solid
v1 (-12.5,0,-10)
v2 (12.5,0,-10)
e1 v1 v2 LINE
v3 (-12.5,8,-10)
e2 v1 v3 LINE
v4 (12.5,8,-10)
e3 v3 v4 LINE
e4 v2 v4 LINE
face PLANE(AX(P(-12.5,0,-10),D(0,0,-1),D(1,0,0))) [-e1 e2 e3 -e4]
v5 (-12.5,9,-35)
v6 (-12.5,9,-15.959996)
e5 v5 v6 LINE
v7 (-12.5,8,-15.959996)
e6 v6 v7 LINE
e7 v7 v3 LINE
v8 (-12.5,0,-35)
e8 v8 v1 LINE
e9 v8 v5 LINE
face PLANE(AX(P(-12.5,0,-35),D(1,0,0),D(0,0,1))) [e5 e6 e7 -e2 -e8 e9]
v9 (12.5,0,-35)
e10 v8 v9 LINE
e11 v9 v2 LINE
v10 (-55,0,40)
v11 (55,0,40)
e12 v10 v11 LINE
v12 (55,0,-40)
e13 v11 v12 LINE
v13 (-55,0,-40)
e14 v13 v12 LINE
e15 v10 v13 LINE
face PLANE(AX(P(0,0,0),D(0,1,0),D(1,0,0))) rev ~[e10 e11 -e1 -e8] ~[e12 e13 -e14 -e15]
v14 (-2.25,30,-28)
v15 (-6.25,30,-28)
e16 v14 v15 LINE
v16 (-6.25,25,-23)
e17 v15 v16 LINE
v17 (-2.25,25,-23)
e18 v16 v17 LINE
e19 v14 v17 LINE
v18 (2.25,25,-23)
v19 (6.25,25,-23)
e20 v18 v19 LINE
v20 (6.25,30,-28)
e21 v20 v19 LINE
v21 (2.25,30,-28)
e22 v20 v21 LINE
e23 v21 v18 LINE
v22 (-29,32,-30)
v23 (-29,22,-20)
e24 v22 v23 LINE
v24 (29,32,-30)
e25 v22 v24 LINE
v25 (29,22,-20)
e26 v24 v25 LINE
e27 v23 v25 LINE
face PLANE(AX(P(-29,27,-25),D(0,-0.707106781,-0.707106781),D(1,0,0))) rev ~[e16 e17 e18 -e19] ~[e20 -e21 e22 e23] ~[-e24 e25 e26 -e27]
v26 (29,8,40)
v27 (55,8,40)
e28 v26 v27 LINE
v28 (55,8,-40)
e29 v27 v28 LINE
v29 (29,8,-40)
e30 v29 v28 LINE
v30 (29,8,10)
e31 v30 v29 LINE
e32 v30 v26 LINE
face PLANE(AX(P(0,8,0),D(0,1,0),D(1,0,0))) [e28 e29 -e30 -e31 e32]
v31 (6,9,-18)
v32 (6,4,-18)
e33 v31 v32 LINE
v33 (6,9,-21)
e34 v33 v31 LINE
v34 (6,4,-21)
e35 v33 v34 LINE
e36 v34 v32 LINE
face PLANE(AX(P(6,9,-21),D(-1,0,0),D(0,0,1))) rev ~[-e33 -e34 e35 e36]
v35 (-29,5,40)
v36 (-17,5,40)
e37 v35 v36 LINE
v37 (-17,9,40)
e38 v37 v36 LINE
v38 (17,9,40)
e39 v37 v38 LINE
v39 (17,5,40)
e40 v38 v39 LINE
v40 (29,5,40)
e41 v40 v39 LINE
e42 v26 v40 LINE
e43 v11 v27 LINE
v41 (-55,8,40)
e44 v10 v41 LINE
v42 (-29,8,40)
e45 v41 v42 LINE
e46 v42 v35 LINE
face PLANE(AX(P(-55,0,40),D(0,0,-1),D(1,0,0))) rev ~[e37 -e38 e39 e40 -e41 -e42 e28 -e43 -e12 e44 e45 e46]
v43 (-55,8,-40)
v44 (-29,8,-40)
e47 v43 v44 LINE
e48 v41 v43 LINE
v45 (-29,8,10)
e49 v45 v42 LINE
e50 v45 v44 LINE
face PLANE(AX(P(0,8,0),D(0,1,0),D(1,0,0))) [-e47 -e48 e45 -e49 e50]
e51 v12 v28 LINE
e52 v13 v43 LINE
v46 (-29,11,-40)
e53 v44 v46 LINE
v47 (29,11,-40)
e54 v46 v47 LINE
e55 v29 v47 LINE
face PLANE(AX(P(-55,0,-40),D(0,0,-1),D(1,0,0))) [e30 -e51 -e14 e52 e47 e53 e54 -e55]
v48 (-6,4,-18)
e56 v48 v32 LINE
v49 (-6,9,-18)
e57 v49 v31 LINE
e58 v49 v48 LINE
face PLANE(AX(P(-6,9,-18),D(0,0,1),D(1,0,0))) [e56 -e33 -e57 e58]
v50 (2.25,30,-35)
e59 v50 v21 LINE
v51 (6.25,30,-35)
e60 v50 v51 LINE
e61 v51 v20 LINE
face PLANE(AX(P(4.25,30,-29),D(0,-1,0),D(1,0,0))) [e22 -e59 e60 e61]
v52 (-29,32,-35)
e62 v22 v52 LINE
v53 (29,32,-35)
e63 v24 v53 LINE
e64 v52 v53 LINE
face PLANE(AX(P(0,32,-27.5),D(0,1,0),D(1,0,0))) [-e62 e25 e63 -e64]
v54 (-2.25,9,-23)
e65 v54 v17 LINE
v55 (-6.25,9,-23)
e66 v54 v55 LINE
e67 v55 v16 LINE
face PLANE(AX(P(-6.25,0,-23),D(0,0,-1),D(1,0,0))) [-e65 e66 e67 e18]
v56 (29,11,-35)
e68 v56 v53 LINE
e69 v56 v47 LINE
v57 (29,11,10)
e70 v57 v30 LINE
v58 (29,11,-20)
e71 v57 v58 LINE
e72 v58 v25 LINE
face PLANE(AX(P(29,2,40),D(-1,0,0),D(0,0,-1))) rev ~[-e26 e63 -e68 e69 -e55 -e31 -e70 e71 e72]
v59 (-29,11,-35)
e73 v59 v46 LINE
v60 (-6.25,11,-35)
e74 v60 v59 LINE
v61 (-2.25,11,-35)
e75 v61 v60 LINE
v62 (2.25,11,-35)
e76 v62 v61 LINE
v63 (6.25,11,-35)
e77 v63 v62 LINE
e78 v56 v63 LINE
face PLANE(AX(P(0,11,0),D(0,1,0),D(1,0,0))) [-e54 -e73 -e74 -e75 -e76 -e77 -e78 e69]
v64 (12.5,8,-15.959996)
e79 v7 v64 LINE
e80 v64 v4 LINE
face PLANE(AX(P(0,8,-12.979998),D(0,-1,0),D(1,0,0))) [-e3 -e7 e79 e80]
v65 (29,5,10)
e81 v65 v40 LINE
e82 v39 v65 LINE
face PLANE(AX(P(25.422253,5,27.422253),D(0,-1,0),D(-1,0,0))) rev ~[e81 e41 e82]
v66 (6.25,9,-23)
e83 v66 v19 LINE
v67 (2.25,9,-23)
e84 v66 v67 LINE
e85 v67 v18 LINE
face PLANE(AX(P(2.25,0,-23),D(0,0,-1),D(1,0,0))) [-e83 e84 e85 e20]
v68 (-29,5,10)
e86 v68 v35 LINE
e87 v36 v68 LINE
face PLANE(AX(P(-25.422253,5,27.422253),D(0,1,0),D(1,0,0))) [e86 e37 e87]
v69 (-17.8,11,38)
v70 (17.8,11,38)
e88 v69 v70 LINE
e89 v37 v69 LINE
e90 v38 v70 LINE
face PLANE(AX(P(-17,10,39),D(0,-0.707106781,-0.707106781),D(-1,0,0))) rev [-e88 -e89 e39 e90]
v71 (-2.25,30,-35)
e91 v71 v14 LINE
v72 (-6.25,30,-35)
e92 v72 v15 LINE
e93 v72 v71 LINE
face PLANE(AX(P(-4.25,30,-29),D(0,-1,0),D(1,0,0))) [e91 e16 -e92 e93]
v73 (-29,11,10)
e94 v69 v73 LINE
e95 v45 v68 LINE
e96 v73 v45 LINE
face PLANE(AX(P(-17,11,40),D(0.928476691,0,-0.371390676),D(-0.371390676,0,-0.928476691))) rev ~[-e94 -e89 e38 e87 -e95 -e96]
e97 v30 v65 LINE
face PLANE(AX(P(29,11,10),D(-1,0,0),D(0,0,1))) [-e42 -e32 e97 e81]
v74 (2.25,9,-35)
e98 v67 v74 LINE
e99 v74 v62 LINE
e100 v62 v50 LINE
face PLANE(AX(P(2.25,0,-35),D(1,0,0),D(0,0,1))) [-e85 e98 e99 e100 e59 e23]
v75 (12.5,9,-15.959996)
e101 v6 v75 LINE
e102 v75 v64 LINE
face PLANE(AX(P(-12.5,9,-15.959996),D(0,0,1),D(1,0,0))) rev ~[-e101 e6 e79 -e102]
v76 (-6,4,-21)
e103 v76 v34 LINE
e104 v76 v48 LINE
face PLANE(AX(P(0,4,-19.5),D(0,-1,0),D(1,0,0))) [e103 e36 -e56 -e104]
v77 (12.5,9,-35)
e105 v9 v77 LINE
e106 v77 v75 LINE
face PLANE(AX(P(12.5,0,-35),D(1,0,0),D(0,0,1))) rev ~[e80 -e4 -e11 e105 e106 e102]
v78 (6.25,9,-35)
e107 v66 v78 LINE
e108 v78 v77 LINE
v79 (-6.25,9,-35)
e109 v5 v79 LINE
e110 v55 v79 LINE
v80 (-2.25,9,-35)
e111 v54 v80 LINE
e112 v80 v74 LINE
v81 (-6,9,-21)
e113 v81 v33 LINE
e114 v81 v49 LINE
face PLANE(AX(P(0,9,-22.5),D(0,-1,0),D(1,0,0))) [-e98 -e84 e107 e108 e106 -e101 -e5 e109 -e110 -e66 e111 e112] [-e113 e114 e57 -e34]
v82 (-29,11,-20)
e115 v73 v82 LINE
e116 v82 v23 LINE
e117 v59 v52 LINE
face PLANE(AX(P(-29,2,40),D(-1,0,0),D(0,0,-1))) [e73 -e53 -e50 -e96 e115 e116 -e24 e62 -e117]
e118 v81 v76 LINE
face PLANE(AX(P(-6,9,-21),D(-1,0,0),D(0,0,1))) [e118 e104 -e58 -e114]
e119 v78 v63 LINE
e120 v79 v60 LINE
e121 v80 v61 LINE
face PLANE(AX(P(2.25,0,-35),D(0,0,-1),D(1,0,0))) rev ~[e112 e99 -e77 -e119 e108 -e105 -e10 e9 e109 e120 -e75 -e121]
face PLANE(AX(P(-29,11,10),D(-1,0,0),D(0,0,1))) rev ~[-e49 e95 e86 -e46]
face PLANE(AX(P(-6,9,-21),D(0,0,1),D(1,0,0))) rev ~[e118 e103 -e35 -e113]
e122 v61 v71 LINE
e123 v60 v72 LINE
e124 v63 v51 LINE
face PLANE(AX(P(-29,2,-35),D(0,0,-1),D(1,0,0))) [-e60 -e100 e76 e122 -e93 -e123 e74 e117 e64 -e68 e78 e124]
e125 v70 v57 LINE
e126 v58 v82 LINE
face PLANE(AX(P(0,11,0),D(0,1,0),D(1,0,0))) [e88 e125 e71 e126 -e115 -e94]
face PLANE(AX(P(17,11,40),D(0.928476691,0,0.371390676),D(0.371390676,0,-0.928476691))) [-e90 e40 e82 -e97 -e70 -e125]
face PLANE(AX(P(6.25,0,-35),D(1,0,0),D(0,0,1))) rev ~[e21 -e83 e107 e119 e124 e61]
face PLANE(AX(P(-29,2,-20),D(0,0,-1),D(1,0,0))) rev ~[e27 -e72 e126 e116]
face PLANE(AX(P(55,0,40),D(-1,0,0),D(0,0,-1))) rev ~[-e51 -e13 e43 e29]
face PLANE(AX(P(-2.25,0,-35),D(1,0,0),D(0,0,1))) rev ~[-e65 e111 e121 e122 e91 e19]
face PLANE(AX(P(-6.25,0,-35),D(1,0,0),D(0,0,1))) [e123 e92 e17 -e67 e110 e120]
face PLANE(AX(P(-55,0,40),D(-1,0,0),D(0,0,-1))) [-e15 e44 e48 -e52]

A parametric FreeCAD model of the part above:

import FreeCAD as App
import Part
import Sketcher
from FreeCAD import Vector


def edges_at(feature, points):
    """Names of the edges that pass closest to the given points."""
    edges = feature.Shape.Edges
    near = lambda p: min(range(len(edges)), key=lambda i: edges[i].distToShape(Part.Vertex(*p))[0])
    return sorted({f"Edge{near(p) + 1}" for p in points})

doc = App.newDocument("Part")
body = doc.addObject("PartDesign::Body", "Body")

# Sketch on XZ plane
sketch1 = body.newObject("Sketcher::SketchObject", "Sketch")
sketch1.AttachmentSupport = (doc.getObject("XZ_Plane"), [""])
sketch1.MapMode = "FlatFace"
sketch1.addGeometry(Part.LineSegment(Vector(-55, -40, 0), Vector(-55, 40, 0)), False)
sketch1.addGeometry(Part.LineSegment(Vector(-55, 40, 0), Vector(55, 40, 0)), False)
sketch1.addGeometry(Part.LineSegment(Vector(55, 40, 0), Vector(55, -40, 0)), False)
sketch1.addGeometry(Part.LineSegment(Vector(55, -40, 0), Vector(-55, -40, 0)), False)
sketch1.addConstraint(Sketcher.Constraint("Coincident", 0, 2, 1, 1))
sketch1.addConstraint(Sketcher.Constraint("Coincident", 1, 2, 2, 1))
sketch1.addConstraint(Sketcher.Constraint("Coincident", 2, 2, 3, 1))
sketch1.addConstraint(Sketcher.Constraint("Coincident", 3, 2, 0, 1))
sketch1.addConstraint(Sketcher.Constraint("Vertical", 0))
sketch1.addConstraint(Sketcher.Constraint("Horizontal", 1))
sketch1.addConstraint(Sketcher.Constraint("Vertical", 2))
sketch1.addConstraint(Sketcher.Constraint("Horizontal", 3))
sketch1.addConstraint(Sketcher.Constraint("Symmetric", 0, 2, 2, 2, -1, 1))
sketch1.addConstraint(Sketcher.Constraint("DistanceX", 1, 1, 1, 2, 110.0))
sketch1.addConstraint(Sketcher.Constraint("DistanceY", 0, 1, 0, 2, 80.0))
pad1 = body.newObject("PartDesign::Pad", "Pad")
pad1.Profile = sketch1
pad1.Length = 8
pad1.Reversed = True

# Sketch on XZ plane
sketch2 = body.newObject("Sketcher::SketchObject", "Sketch001")
sketch2.AttachmentSupport = (doc.getObject("XZ_Plane"), [""])
sketch2.MapMode = "FlatFace"
sketch2.AttachmentOffset = App.Placement(Vector(0, 0, -2), App.Rotation())
sketch2.addGeometry(Part.LineSegment(Vector(-29, -40, 0), Vector(-29, 40, 0)), False)
sketch2.addGeometry(Part.LineSegment(Vector(-29, 40, 0), Vector(29, 40, 0)), False)
sketch2.addGeometry(Part.LineSegment(Vector(29, 40, 0), Vector(29, -40, 0)), False)
sketch2.addGeometry(Part.LineSegment(Vector(29, -40, 0), Vector(-29, -40, 0)), False)
sketch2.addConstraint(Sketcher.Constraint("Coincident", 0, 2, 1, 1))
sketch2.addConstraint(Sketcher.Constraint("Coincident", 1, 2, 2, 1))
sketch2.addConstraint(Sketcher.Constraint("Coincident", 2, 2, 3, 1))
sketch2.addConstraint(Sketcher.Constraint("Coincident", 3, 2, 0, 1))
sketch2.addConstraint(Sketcher.Constraint("Vertical", 0))
sketch2.addConstraint(Sketcher.Constraint("Horizontal", 1))
sketch2.addConstraint(Sketcher.Constraint("Vertical", 2))
sketch2.addConstraint(Sketcher.Constraint("Horizontal", 3))
sketch2.addConstraint(Sketcher.Constraint("Symmetric", 0, 2, 2, 2, -1, 1))
sketch2.addConstraint(Sketcher.Constraint("DistanceX", 1, 1, 1, 2, 58.0))
sketch2.addConstraint(Sketcher.Constraint("DistanceY", 0, 1, 0, 2, 80.0))
pad2 = body.newObject("PartDesign::Pad", "Pad001")
pad2.Profile = sketch2
pad2.Length = 9
pad2.Reversed = True

# Sketch on XZ plane
sketch3 = body.newObject("Sketcher::SketchObject", "Sketch002")
sketch3.AttachmentSupport = (doc.getObject("XZ_Plane"), [""])
sketch3.MapMode = "FlatFace"
sketch3.AttachmentOffset = App.Placement(Vector(0, 0, -11), App.Rotation())
sketch3.addGeometry(Part.LineSegment(Vector(-29, 10, 0), Vector(-29, 40, 0)), False)
sketch3.addGeometry(Part.LineSegment(Vector(-29, 40, 0), Vector(-17, 40, 0)), False)
sketch3.addGeometry(Part.LineSegment(Vector(-17, 40, 0), Vector(-29, 10, 0)), False)
sketch3.addGeometry(Part.LineSegment(Vector(29, 10, 0), Vector(17, 40, 0)), False)
sketch3.addGeometry(Part.LineSegment(Vector(17, 40, 0), Vector(29, 40, 0)), False)
sketch3.addGeometry(Part.LineSegment(Vector(29, 40, 0), Vector(29, 10, 0)), False)
sketch3.addConstraint(Sketcher.Constraint("Coincident", 0, 2, 1, 1))
sketch3.addConstraint(Sketcher.Constraint("Coincident", 1, 2, 2, 1))
sketch3.addConstraint(Sketcher.Constraint("Coincident", 2, 2, 0, 1))
sketch3.addConstraint(Sketcher.Constraint("Coincident", 3, 2, 4, 1))
sketch3.addConstraint(Sketcher.Constraint("Coincident", 4, 2, 5, 1))
sketch3.addConstraint(Sketcher.Constraint("Coincident", 5, 2, 3, 1))
sketch3.addConstraint(Sketcher.Constraint("Vertical", 0))
sketch3.addConstraint(Sketcher.Constraint("Horizontal", 1))
sketch3.addConstraint(Sketcher.Constraint("Horizontal", 4))
sketch3.addConstraint(Sketcher.Constraint("Vertical", 5))
sketch3.addConstraint(Sketcher.Constraint("Symmetric", 1, 2, 3, 2, -2))
sketch3.addConstraint(Sketcher.Constraint("Symmetric", 2, 2, 5, 2, -2))
sketch3.addConstraint(Sketcher.Constraint("DistanceX", 1, 1, 1, 2, 12.0))
sketch3.addConstraint(Sketcher.Constraint("DistanceY", 0, 1, 0, 2, 30.0))
sketch3.addConstraint(Sketcher.Constraint("DistanceX", 0, 2, -1, 1, 29.0))
sketch3.addConstraint(Sketcher.Constraint("DistanceY", -1, 1, 0, 2, 40.0))
pocket1 = body.newObject("PartDesign::Pocket", "Pocket")
pocket1.Profile = sketch3
pocket1.Length = 6
pocket1.Reversed = True
doc.recompute()

chamfer = body.newObject("PartDesign::Chamfer", "Chamfer")
chamfer.Base = (pocket1, edges_at(pocket1, [(0, 11, 40)]))
chamfer.Size = 2

# Sketch on XZ plane
sketch4 = body.newObject("Sketcher::SketchObject", "Sketch003")
sketch4.AttachmentSupport = (doc.getObject("XZ_Plane"), [""])
sketch4.MapMode = "FlatFace"
sketch4.AttachmentOffset = App.Placement(Vector(0, 0, -2), App.Rotation())
sketch4.addGeometry(Part.LineSegment(Vector(-29, -35, 0), Vector(-29, -20, 0)), False)
sketch4.addGeometry(Part.LineSegment(Vector(-29, -20, 0), Vector(29, -20, 0)), False)
sketch4.addGeometry(Part.LineSegment(Vector(29, -20, 0), Vector(29, -35, 0)), False)
sketch4.addGeometry(Part.LineSegment(Vector(29, -35, 0), Vector(-29, -35, 0)), False)
sketch4.addConstraint(Sketcher.Constraint("Coincident", 0, 2, 1, 1))
sketch4.addConstraint(Sketcher.Constraint("Coincident", 1, 2, 2, 1))
sketch4.addConstraint(Sketcher.Constraint("Coincident", 2, 2, 3, 1))
sketch4.addConstraint(Sketcher.Constraint("Coincident", 3, 2, 0, 1))
sketch4.addConstraint(Sketcher.Constraint("Vertical", 0))
sketch4.addConstraint(Sketcher.Constraint("Horizontal", 1))
sketch4.addConstraint(Sketcher.Constraint("Vertical", 2))
sketch4.addConstraint(Sketcher.Constraint("Horizontal", 3))
sketch4.addConstraint(Sketcher.Constraint("DistanceX", 1, 1, 1, 2, 58.0))
sketch4.addConstraint(Sketcher.Constraint("DistanceY", 0, 1, 0, 2, 15.0))
sketch4.addConstraint(Sketcher.Constraint("DistanceX", 0, 2, -1, 1, 29.0))
sketch4.addConstraint(Sketcher.Constraint("DistanceY", 0, 2, -1, 1, 20.0))
pad3 = body.newObject("PartDesign::Pad", "Pad002")
pad3.Profile = sketch4
pad3.Length = 30
pad3.Reversed = True
doc.recompute()

chamfer2 = body.newObject("PartDesign::Chamfer", "Chamfer001")
chamfer2.Base = (pad3, edges_at(pad3, [(0, 32, -20)]))
chamfer2.Size = 10

# Sketch on XZ plane
sketch5 = body.newObject("Sketcher::SketchObject", "Sketch004")
sketch5.AttachmentSupport = (doc.getObject("XZ_Plane"), [""])
sketch5.MapMode = "FlatFace"
sketch5.addGeometry(Part.LineSegment(Vector(-6.2, -23, 0), Vector(-6.2, -35, 0)), False)
sketch5.addGeometry(Part.LineSegment(Vector(-6.2, -35, 0), Vector(-2.2, -35, 0)), False)
sketch5.addGeometry(Part.LineSegment(Vector(-2.2, -35, 0), Vector(-2.2, -23, 0)), False)
sketch5.addGeometry(Part.LineSegment(Vector(-2.2, -23, 0), Vector(-6.2, -23, 0)), False)
sketch5.addGeometry(Part.LineSegment(Vector(2.2, -23, 0), Vector(2.2, -35, 0)), False)
sketch5.addGeometry(Part.LineSegment(Vector(2.2, -35, 0), Vector(6.2, -35, 0)), False)
sketch5.addGeometry(Part.LineSegment(Vector(6.2, -35, 0), Vector(6.2, -23, 0)), False)
sketch5.addGeometry(Part.LineSegment(Vector(6.2, -23, 0), Vector(2.2, -23, 0)), False)
sketch5.addConstraint(Sketcher.Constraint("Coincident", 0, 2, 1, 1))
sketch5.addConstraint(Sketcher.Constraint("Coincident", 1, 2, 2, 1))
sketch5.addConstraint(Sketcher.Constraint("Coincident", 2, 2, 3, 1))
sketch5.addConstraint(Sketcher.Constraint("Coincident", 3, 2, 0, 1))
sketch5.addConstraint(Sketcher.Constraint("Coincident", 4, 2, 5, 1))
sketch5.addConstraint(Sketcher.Constraint("Coincident", 5, 2, 6, 1))
sketch5.addConstraint(Sketcher.Constraint("Coincident", 6, 2, 7, 1))
sketch5.addConstraint(Sketcher.Constraint("Coincident", 7, 2, 4, 1))
sketch5.addConstraint(Sketcher.Constraint("Vertical", 0))
sketch5.addConstraint(Sketcher.Constraint("Horizontal", 1))
sketch5.addConstraint(Sketcher.Constraint("Vertical", 2))
sketch5.addConstraint(Sketcher.Constraint("Horizontal", 3))
sketch5.addConstraint(Sketcher.Constraint("Vertical", 4))
sketch5.addConstraint(Sketcher.Constraint("Horizontal", 5))
sketch5.addConstraint(Sketcher.Constraint("Vertical", 6))
sketch5.addConstraint(Sketcher.Constraint("Horizontal", 7))
sketch5.addConstraint(Sketcher.Constraint("Symmetric", 1, 2, 4, 2, -2))
sketch5.addConstraint(Sketcher.Constraint("Symmetric", 3, 2, 6, 2, -2))
sketch5.addConstraint(Sketcher.Constraint("DistanceX", 1, 1, 1, 2, 4.0))
sketch5.addConstraint(Sketcher.Constraint("DistanceY", 0, 2, 0, 1, 12.0))
sketch5.addConstraint(Sketcher.Constraint("DistanceY", 0, 2, -1, 1, 35.0))
sketch5.addConstraint(Sketcher.Constraint("DistanceX", 1, 2, 4, 2, 4.5))
pocket2 = body.newObject("PartDesign::Pocket", "Pocket001")
pocket2.Profile = sketch5
pocket2.Length = 30

# Sketch on XZ plane
sketch6 = body.newObject("Sketcher::SketchObject", "Sketch005")
sketch6.AttachmentSupport = (doc.getObject("XZ_Plane"), [""])
sketch6.MapMode = "FlatFace"
sketch6.addGeometry(Part.LineSegment(Vector(-12, -10, 0), Vector(-12, -35, 0)), False)
sketch6.addGeometry(Part.LineSegment(Vector(-12, -35, 0), Vector(12, -35, 0)), False)
sketch6.addGeometry(Part.LineSegment(Vector(12, -35, 0), Vector(12, -10, 0)), False)
sketch6.addGeometry(Part.LineSegment(Vector(12, -10, 0), Vector(-12, -10, 0)), False)
sketch6.addConstraint(Sketcher.Constraint("Coincident", 0, 2, 1, 1))
sketch6.addConstraint(Sketcher.Constraint("Coincident", 1, 2, 2, 1))
sketch6.addConstraint(Sketcher.Constraint("Coincident", 2, 2, 3, 1))
sketch6.addConstraint(Sketcher.Constraint("Coincident", 3, 2, 0, 1))
sketch6.addConstraint(Sketcher.Constraint("Vertical", 0))
sketch6.addConstraint(Sketcher.Constraint("Horizontal", 1))
sketch6.addConstraint(Sketcher.Constraint("Vertical", 2))
sketch6.addConstraint(Sketcher.Constraint("Horizontal", 3))
sketch6.addConstraint(Sketcher.Constraint("Equal", 3, 0))
sketch6.addConstraint(Sketcher.Constraint("DistanceX", 1, 1, 1, 2, 25.0))
sketch6.addConstraint(Sketcher.Constraint("DistanceY", 0, 2, -1, 1, 35.0))
sketch6.addConstraint(Sketcher.Constraint("DistanceX", 0, 2, -1, 1, 12.5))
pocket3 = body.newObject("PartDesign::Pocket", "Pocket002")
pocket3.Profile = sketch6
pocket3.Length = 9

# Sketch on XZ plane
sketch7 = body.newObject("Sketcher::SketchObject", "Sketch006")
sketch7.AttachmentSupport = (doc.getObject("XZ_Plane"), [""])
sketch7.MapMode = "FlatFace"
sketch7.AttachmentOffset = App.Placement(Vector(0, 0, -9), App.Rotation())
sketch7.addGeometry(Part.LineSegment(Vector(-6, -18, 0), Vector(-6, -21, 0)), False)
sketch7.addGeometry(Part.LineSegment(Vector(-6, -21, 0), Vector(6, -21, 0)), False)
sketch7.addGeometry(Part.LineSegment(Vector(6, -21, 0), Vector(6, -18, 0)), False)
sketch7.addGeometry(Part.LineSegment(Vector(6, -18, 0), Vector(-6, -18, 0)), False)
sketch7.addConstraint(Sketcher.Constraint("Coincident", 0, 2, 1, 1))
sketch7.addConstraint(Sketcher.Constraint("Coincident", 1, 2, 2, 1))
sketch7.addConstraint(Sketcher.Constraint("Coincident", 2, 2, 3, 1))
sketch7.addConstraint(Sketcher.Constraint("Coincident", 3, 2, 0, 1))
sketch7.addConstraint(Sketcher.Constraint("Vertical", 0))
sketch7.addConstraint(Sketcher.Constraint("Horizontal", 1))
sketch7.addConstraint(Sketcher.Constraint("Vertical", 2))
sketch7.addConstraint(Sketcher.Constraint("Horizontal", 3))
sketch7.addConstraint(Sketcher.Constraint("DistanceX", 1, 1, 1, 2, 12.0))
sketch7.addConstraint(Sketcher.Constraint("DistanceY", 0, 2, 0, 1, 3.0))
sketch7.addConstraint(Sketcher.Constraint("DistanceX", 0, 2, -1, 1, 6.0))
sketch7.addConstraint(Sketcher.Constraint("DistanceY", 0, 2, -1, 1, 21.0))
pad4 = body.newObject("PartDesign::Pad", "Pad003")
pad4.Profile = sketch7
pad4.Length = 5

# Sketch on XZ plane
sketch8 = body.newObject("Sketcher::SketchObject", "Sketch007")
sketch8.AttachmentSupport = (doc.getObject("XZ_Plane"), [""])
sketch8.MapMode = "FlatFace"
sketch8.AttachmentOffset = App.Placement(Vector(0, 0, -9), App.Rotation())
sketch8.addGeometry(Part.LineSegment(Vector(-12, -10, 0), Vector(-12, -16, 0)), False)
sketch8.addGeometry(Part.LineSegment(Vector(-12, -16, 0), Vector(12, -16, 0)), False)
sketch8.addGeometry(Part.LineSegment(Vector(12, -16, 0), Vector(12, -10, 0)), False)
sketch8.addGeometry(Part.LineSegment(Vector(12, -10, 0), Vector(-12, -10, 0)), False)
sketch8.addConstraint(Sketcher.Constraint("Coincident", 0, 2, 1, 1))
sketch8.addConstraint(Sketcher.Constraint("Coincident", 1, 2, 2, 1))
sketch8.addConstraint(Sketcher.Constraint("Coincident", 2, 2, 3, 1))
sketch8.addConstraint(Sketcher.Constraint("Coincident", 3, 2, 0, 1))
sketch8.addConstraint(Sketcher.Constraint("Vertical", 0))
sketch8.addConstraint(Sketcher.Constraint("Horizontal", 1))
sketch8.addConstraint(Sketcher.Constraint("Vertical", 2))
sketch8.addConstraint(Sketcher.Constraint("Horizontal", 3))
sketch8.addConstraint(Sketcher.Constraint("DistanceX", 1, 1, 1, 2, 25.0))
sketch8.addConstraint(Sketcher.Constraint("DistanceY", 2, 2, -1, 1, 10.0))
sketch8.addConstraint(Sketcher.Constraint("DistanceX", 0, 2, -1, 1, 12.5))
sketch8.addConstraint(Sketcher.Constraint("DistanceY", 0, 2, 0, 1, 5.959996))
pad5 = body.newObject("PartDesign::Pad", "Pad004")
pad5.Profile = sketch8
pad5.Length = 1

doc.recompute()
